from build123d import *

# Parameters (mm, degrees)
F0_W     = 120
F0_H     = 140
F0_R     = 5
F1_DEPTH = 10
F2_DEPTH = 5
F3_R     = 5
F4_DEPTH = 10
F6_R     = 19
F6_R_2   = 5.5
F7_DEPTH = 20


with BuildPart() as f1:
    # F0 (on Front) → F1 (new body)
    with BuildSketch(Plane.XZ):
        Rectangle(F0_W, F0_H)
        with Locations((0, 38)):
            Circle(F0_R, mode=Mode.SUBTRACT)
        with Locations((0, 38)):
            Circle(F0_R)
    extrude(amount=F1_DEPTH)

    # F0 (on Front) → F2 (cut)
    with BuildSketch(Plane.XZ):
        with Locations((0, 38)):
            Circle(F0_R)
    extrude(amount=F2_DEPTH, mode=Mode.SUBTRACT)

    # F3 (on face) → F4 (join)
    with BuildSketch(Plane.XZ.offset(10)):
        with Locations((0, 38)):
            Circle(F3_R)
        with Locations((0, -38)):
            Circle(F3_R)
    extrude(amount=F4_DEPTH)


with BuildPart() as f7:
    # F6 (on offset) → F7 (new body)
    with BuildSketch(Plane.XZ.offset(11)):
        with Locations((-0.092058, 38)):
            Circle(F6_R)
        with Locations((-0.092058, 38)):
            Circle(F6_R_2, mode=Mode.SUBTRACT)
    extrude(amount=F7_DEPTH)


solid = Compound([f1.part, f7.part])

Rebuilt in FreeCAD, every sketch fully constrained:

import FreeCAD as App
import Part
import Sketcher

V = App.Vector


def add_polygon(sketch, points):
    """Adds a closed chain of lines whose ends are joined by coincident constraints."""
    first, n = sketch.GeometryCount, len(points)
    for a, b in zip(points, points[1:] + points[:1]):
        sketch.addGeometry(Part.LineSegment(App.Vector(*a, 0), App.Vector(*b, 0)), False)
    for i in range(n):
        sketch.addConstraint(Sketcher.Constraint("Coincident", first + i, 2, first + (i + 1) % n, 1))

doc = App.newDocument("Part")
body = doc.addObject("PartDesign::Body", "Body")

sketch1 = doc.addObject("Sketcher::SketchObject", "Sketch")
body.addObject(sketch1)
sketch1.AttachmentSupport = (doc.XZ_Plane, [""])
sketch1.MapMode = "FlatFace"
add_polygon(sketch1, [(-60, 70), (-60, -70), (60, -70), (60, 70)])
sketch1.addConstraint(Sketcher.Constraint("Vertical", 0))
sketch1.addConstraint(Sketcher.Constraint("Horizontal", 1))
sketch1.addConstraint(Sketcher.Constraint("Vertical", 2))
sketch1.addConstraint(Sketcher.Constraint("Horizontal", 3))
sketch1.addConstraint(Sketcher.Constraint("Symmetric", 0, 2, 2, 2, -1, 1))
sketch1.addConstraint(Sketcher.Constraint("DistanceX", 1, 1, 1, 2, 120.0))
sketch1.addConstraint(Sketcher.Constraint("DistanceY", 0, 2, 0, 1, 140.0))
pad1 = doc.addObject("PartDesign::Pad", "Pad")
body.addObject(pad1)
pad1.Profile = sketch1
pad1.Length = 10

sketch2 = doc.addObject("Sketcher::SketchObject", "Sketch001")
body.addObject(sketch2)
sketch2.AttachmentSupport = (doc.XZ_Plane, [""])
sketch2.MapMode = "FlatFace"
sketch2.addGeometry(Part.Circle(V(0, 38, 0), V(0, 0, 1), 5), False)
sketch2.addConstraint(Sketcher.Constraint("PointOnObject", 0, 3, -2))
sketch2.addConstraint(Sketcher.Constraint("Diameter", 0, 10.0))
sketch2.addConstraint(Sketcher.Constraint("DistanceY", -1, 1, 0, 3, 38.0))
pocket1 = doc.addObject("PartDesign::Pocket", "Pocket")
body.addObject(pocket1)
pocket1.Profile = sketch2
pocket1.Length = 5
pocket1.Reversed = True

sketch3 = doc.addObject("Sketcher::SketchObject", "Sketch002")
body.addObject(sketch3)
sketch3.AttachmentSupport = (doc.XZ_Plane, [""])
sketch3.MapMode = "FlatFace"
sketch3.AttachmentOffset = App.Placement(V(0, 0, 10), App.Rotation())
sketch3.addGeometry(Part.Circle(V(0, 38, 0), V(0, 0, 1), 5), False)
sketch3.addGeometry(Part.Circle(V(0, -38, 0), V(0, 0, 1), 5), False)
sketch3.addConstraint(Sketcher.Constraint("Equal", 0, 1))
sketch3.addConstraint(Sketcher.Constraint("Symmetric", 0, 3, 1, 3, -1, 1))
sketch3.addConstraint(Sketcher.Constraint("PointOnObject", 0, 3, -2))
sketch3.addConstraint(Sketcher.Constraint("Diameter", 0, 10.0))
sketch3.addConstraint(Sketcher.Constraint("DistanceY", -1, 1, 0, 3, 38.0))
pad2 = doc.addObject("PartDesign::Pad", "Pad001")
body.addObject(pad2)
pad2.Profile = sketch3
pad2.Length = 10
body2 = doc.addObject("PartDesign::Body", "Body001")

sketch4 = doc.addObject("Sketcher::SketchObject", "Sketch003")
body2.addObject(sketch4)
sketch4.AttachmentSupport = (doc.getObject("XZ_Plane001"), [""])
sketch4.MapMode = "FlatFace"
sketch4.AttachmentOffset = App.Placement(V(0, 0, 11), App.Rotation())
sketch4.addGeometry(Part.Circle(V(-0.092058, 38, 0), V(0, 0, 1), 19), False)
sketch4.addGeometry(Part.Circle(V(-0.092058, 38, 0), V(0, 0, 1), 5.5), False)
sketch4.addConstraint(Sketcher.Constraint("Coincident", 1, 3, 0, 3))
sketch4.addConstraint(Sketcher.Constraint("Diameter", 0, 38.0))
sketch4.addConstraint(Sketcher.Constraint("Diameter", 1, 11.0))
sketch4.addConstraint(Sketcher.Constraint("DistanceY", -1, 1, 0, 3, 38.0))
sketch4.addConstraint(Sketcher.Constraint("DistanceX", 0, 3, -1, 1, 0.092058))
pad3 = doc.addObject("PartDesign::Pad", "Pad002")
body2.addObject(pad3)
pad3.Profile = sketch4
pad3.Length = 20

doc.recompute()
